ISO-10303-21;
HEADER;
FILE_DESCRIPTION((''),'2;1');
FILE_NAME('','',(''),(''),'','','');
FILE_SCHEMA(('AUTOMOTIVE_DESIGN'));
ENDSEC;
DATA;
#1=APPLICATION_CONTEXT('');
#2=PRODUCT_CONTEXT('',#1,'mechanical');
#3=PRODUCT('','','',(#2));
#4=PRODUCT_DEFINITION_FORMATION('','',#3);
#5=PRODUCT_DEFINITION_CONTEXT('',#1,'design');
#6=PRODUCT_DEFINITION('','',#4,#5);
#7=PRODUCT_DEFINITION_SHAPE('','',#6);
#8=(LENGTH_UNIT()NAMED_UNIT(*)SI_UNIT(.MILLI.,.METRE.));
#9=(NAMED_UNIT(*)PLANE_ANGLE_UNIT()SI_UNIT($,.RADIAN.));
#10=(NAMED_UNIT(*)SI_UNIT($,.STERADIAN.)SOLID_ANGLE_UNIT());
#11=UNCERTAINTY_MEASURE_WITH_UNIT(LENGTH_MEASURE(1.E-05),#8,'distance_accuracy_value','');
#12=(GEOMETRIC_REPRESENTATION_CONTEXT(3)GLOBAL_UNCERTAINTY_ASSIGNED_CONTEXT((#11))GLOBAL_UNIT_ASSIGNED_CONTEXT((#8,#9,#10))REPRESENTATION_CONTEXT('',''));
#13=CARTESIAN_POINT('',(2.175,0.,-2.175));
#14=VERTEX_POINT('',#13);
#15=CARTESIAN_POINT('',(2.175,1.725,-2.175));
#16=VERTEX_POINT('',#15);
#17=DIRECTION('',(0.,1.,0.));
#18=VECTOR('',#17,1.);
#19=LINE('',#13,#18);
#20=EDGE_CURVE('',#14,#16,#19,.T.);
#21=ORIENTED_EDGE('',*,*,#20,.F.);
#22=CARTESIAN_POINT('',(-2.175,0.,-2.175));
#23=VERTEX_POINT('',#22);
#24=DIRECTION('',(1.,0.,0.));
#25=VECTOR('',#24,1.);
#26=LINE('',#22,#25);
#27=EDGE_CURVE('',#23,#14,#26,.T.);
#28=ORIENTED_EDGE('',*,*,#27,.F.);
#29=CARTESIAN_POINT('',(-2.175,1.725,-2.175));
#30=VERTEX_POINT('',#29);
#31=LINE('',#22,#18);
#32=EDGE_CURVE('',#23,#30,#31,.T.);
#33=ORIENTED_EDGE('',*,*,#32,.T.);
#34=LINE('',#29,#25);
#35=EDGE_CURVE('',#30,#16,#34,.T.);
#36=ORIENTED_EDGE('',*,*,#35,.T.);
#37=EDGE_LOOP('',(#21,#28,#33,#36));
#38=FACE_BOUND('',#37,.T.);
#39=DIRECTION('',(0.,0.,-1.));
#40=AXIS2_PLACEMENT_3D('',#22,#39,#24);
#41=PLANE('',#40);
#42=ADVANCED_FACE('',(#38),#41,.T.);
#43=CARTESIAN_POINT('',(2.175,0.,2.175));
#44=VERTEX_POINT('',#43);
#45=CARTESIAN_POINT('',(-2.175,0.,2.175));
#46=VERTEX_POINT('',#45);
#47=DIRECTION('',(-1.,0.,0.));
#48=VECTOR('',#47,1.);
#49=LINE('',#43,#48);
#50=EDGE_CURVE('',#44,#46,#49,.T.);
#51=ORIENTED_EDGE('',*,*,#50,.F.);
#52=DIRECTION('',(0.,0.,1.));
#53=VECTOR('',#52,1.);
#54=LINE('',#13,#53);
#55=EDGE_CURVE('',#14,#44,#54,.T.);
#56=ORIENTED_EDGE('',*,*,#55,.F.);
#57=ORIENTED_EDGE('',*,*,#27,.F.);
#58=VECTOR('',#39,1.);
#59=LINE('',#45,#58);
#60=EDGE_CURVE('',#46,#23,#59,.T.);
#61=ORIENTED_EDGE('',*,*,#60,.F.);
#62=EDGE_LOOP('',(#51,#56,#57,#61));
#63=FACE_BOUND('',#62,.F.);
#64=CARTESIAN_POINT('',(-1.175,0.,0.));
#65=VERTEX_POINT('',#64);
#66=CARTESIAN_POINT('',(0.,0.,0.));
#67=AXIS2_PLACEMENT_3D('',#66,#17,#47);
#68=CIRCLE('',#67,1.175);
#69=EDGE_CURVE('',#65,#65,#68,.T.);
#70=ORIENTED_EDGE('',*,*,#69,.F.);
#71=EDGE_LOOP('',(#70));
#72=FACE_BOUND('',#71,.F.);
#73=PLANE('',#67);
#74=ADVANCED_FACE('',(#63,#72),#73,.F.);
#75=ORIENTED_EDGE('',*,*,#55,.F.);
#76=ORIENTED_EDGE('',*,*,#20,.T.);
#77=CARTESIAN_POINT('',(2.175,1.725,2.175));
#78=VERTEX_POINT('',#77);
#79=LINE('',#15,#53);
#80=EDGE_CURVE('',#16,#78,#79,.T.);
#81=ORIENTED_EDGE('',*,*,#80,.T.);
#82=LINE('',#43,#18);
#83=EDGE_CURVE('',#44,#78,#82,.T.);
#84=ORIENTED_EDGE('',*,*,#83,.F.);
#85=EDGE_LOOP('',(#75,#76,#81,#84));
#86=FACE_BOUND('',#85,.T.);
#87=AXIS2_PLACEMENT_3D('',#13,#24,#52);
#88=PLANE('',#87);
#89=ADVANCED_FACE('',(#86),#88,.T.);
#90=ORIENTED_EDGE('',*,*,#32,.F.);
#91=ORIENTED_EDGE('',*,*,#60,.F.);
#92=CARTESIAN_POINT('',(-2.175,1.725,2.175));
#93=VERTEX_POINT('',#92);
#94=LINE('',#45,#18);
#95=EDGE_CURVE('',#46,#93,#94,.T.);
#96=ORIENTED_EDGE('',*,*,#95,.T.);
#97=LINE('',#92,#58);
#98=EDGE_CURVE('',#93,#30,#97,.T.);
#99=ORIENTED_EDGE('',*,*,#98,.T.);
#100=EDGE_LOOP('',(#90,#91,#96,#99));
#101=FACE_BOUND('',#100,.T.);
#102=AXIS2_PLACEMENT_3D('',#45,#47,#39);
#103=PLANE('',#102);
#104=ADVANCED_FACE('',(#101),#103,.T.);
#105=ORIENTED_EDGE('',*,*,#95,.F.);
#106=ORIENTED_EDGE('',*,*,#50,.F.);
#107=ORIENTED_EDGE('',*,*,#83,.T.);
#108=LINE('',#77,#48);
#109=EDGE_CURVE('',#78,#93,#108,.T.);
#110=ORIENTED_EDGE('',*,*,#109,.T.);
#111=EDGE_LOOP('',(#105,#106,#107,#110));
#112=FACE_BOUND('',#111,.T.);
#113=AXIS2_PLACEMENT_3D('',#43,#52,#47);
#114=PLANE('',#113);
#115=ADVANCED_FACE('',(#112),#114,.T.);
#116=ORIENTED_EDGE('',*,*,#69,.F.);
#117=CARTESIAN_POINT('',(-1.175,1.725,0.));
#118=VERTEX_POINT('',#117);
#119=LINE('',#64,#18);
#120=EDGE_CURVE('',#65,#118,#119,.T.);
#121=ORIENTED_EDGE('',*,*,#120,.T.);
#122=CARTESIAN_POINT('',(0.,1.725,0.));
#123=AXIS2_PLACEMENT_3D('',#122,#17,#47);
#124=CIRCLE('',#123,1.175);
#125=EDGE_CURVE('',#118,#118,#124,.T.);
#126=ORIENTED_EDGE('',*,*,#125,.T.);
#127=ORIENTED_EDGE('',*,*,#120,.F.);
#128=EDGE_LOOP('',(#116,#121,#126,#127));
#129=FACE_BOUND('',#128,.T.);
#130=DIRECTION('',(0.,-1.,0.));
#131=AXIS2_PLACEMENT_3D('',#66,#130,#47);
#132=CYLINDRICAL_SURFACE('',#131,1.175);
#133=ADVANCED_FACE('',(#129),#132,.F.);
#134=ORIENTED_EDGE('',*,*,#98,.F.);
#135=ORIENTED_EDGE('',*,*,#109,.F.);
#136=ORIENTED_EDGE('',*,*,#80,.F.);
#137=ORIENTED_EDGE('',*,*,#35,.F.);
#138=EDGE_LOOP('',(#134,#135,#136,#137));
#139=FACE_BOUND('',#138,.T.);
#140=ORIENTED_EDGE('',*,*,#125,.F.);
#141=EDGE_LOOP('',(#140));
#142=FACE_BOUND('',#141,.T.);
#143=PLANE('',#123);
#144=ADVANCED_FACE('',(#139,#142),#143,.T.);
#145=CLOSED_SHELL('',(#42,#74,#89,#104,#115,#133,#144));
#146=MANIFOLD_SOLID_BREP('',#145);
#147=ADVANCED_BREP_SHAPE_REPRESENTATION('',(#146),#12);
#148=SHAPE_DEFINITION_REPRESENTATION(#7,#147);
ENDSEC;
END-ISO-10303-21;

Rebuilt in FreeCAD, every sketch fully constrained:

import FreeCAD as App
import Part
import Sketcher

doc = App.newDocument("Part")
params = doc.addObject("Spreadsheet::Sheet", "Params")
for row, (alias, value) in enumerate([
    ("sketch1_diameter", "2.35 mm"),
    ("sketch1_width", "4.35 mm"),
    ("pad1_length", "1.725 mm"),
], start=1):
    params.set(f"A{row}", alias)
    params.set(f"B{row}", "=" + value)
    params.setAlias(f"B{row}", alias)

body = doc.addObject("PartDesign::Body", "Body")

sketch1 = doc.addObject("Sketcher::SketchObject", "Sketch")
body.addObject(sketch1)
sketch1.AttachmentSupport = (doc.XZ_Plane, [""])
sketch1.MapMode = "FlatFace"
sketch1.addGeometry(Part.LineSegment(App.Vector(-2.175, 2.175, 0), App.Vector(2.175, 2.175, 0)), False)
sketch1.addGeometry(Part.LineSegment(App.Vector(2.175, 2.175, 0), App.Vector(2.175, -2.175, 0)), False)
sketch1.addGeometry(Part.LineSegment(App.Vector(2.175, -2.175, 0), App.Vector(-2.175, -2.175, 0)), False)
sketch1.addGeometry(Part.LineSegment(App.Vector(-2.175, -2.175, 0), App.Vector(-2.175, 2.175, 0)), False)
sketch1.addGeometry(Part.Circle(App.Vector(0, 0, 0), App.Vector(0, 0, 1), 1.175), False)
sketch1.addConstraint(Sketcher.Constraint("Coincident", 0, 2, 1, 1))
sketch1.addConstraint(Sketcher.Constraint("Coincident", 1, 2, 2, 1))
sketch1.addConstraint(Sketcher.Constraint("Coincident", 2, 2, 3, 1))
sketch1.addConstraint(Sketcher.Constraint("Coincident", 3, 2, 0, 1))
sketch1.addConstraint(Sketcher.Constraint("Horizontal", 0))
sketch1.addConstraint(Sketcher.Constraint("Vertical", 1))
sketch1.addConstraint(Sketcher.Constraint("Horizontal", 2))
sketch1.addConstraint(Sketcher.Constraint("Vertical", 3))
sketch1.addConstraint(Sketcher.Constraint("Coincident", 4, 3, -1, 1))
sketch1.addConstraint(Sketcher.Constraint("Symmetric", 0, 2, 2, 2, -1, 1))
sketch1.addConstraint(Sketcher.Constraint("Equal", 2, 1))
sketch1.addConstraint(Sketcher.Constraint("Diameter", 4, 2.35))
sketch1.addConstraint(Sketcher.Constraint("DistanceX", 0, 1, 0, 2, 4.35))
sketch1.setExpression("Constraints[11]", "Params.sketch1_diameter")
sketch1.setExpression("Constraints[12]", "Params.sketch1_width")
pad1 = doc.addObject("PartDesign::Pad", "Pad")
body.addObject(pad1)
pad1.Profile = sketch1
pad1.setExpression("Length", "Params.pad1_length")
pad1.Reversed = True

doc.recompute()
